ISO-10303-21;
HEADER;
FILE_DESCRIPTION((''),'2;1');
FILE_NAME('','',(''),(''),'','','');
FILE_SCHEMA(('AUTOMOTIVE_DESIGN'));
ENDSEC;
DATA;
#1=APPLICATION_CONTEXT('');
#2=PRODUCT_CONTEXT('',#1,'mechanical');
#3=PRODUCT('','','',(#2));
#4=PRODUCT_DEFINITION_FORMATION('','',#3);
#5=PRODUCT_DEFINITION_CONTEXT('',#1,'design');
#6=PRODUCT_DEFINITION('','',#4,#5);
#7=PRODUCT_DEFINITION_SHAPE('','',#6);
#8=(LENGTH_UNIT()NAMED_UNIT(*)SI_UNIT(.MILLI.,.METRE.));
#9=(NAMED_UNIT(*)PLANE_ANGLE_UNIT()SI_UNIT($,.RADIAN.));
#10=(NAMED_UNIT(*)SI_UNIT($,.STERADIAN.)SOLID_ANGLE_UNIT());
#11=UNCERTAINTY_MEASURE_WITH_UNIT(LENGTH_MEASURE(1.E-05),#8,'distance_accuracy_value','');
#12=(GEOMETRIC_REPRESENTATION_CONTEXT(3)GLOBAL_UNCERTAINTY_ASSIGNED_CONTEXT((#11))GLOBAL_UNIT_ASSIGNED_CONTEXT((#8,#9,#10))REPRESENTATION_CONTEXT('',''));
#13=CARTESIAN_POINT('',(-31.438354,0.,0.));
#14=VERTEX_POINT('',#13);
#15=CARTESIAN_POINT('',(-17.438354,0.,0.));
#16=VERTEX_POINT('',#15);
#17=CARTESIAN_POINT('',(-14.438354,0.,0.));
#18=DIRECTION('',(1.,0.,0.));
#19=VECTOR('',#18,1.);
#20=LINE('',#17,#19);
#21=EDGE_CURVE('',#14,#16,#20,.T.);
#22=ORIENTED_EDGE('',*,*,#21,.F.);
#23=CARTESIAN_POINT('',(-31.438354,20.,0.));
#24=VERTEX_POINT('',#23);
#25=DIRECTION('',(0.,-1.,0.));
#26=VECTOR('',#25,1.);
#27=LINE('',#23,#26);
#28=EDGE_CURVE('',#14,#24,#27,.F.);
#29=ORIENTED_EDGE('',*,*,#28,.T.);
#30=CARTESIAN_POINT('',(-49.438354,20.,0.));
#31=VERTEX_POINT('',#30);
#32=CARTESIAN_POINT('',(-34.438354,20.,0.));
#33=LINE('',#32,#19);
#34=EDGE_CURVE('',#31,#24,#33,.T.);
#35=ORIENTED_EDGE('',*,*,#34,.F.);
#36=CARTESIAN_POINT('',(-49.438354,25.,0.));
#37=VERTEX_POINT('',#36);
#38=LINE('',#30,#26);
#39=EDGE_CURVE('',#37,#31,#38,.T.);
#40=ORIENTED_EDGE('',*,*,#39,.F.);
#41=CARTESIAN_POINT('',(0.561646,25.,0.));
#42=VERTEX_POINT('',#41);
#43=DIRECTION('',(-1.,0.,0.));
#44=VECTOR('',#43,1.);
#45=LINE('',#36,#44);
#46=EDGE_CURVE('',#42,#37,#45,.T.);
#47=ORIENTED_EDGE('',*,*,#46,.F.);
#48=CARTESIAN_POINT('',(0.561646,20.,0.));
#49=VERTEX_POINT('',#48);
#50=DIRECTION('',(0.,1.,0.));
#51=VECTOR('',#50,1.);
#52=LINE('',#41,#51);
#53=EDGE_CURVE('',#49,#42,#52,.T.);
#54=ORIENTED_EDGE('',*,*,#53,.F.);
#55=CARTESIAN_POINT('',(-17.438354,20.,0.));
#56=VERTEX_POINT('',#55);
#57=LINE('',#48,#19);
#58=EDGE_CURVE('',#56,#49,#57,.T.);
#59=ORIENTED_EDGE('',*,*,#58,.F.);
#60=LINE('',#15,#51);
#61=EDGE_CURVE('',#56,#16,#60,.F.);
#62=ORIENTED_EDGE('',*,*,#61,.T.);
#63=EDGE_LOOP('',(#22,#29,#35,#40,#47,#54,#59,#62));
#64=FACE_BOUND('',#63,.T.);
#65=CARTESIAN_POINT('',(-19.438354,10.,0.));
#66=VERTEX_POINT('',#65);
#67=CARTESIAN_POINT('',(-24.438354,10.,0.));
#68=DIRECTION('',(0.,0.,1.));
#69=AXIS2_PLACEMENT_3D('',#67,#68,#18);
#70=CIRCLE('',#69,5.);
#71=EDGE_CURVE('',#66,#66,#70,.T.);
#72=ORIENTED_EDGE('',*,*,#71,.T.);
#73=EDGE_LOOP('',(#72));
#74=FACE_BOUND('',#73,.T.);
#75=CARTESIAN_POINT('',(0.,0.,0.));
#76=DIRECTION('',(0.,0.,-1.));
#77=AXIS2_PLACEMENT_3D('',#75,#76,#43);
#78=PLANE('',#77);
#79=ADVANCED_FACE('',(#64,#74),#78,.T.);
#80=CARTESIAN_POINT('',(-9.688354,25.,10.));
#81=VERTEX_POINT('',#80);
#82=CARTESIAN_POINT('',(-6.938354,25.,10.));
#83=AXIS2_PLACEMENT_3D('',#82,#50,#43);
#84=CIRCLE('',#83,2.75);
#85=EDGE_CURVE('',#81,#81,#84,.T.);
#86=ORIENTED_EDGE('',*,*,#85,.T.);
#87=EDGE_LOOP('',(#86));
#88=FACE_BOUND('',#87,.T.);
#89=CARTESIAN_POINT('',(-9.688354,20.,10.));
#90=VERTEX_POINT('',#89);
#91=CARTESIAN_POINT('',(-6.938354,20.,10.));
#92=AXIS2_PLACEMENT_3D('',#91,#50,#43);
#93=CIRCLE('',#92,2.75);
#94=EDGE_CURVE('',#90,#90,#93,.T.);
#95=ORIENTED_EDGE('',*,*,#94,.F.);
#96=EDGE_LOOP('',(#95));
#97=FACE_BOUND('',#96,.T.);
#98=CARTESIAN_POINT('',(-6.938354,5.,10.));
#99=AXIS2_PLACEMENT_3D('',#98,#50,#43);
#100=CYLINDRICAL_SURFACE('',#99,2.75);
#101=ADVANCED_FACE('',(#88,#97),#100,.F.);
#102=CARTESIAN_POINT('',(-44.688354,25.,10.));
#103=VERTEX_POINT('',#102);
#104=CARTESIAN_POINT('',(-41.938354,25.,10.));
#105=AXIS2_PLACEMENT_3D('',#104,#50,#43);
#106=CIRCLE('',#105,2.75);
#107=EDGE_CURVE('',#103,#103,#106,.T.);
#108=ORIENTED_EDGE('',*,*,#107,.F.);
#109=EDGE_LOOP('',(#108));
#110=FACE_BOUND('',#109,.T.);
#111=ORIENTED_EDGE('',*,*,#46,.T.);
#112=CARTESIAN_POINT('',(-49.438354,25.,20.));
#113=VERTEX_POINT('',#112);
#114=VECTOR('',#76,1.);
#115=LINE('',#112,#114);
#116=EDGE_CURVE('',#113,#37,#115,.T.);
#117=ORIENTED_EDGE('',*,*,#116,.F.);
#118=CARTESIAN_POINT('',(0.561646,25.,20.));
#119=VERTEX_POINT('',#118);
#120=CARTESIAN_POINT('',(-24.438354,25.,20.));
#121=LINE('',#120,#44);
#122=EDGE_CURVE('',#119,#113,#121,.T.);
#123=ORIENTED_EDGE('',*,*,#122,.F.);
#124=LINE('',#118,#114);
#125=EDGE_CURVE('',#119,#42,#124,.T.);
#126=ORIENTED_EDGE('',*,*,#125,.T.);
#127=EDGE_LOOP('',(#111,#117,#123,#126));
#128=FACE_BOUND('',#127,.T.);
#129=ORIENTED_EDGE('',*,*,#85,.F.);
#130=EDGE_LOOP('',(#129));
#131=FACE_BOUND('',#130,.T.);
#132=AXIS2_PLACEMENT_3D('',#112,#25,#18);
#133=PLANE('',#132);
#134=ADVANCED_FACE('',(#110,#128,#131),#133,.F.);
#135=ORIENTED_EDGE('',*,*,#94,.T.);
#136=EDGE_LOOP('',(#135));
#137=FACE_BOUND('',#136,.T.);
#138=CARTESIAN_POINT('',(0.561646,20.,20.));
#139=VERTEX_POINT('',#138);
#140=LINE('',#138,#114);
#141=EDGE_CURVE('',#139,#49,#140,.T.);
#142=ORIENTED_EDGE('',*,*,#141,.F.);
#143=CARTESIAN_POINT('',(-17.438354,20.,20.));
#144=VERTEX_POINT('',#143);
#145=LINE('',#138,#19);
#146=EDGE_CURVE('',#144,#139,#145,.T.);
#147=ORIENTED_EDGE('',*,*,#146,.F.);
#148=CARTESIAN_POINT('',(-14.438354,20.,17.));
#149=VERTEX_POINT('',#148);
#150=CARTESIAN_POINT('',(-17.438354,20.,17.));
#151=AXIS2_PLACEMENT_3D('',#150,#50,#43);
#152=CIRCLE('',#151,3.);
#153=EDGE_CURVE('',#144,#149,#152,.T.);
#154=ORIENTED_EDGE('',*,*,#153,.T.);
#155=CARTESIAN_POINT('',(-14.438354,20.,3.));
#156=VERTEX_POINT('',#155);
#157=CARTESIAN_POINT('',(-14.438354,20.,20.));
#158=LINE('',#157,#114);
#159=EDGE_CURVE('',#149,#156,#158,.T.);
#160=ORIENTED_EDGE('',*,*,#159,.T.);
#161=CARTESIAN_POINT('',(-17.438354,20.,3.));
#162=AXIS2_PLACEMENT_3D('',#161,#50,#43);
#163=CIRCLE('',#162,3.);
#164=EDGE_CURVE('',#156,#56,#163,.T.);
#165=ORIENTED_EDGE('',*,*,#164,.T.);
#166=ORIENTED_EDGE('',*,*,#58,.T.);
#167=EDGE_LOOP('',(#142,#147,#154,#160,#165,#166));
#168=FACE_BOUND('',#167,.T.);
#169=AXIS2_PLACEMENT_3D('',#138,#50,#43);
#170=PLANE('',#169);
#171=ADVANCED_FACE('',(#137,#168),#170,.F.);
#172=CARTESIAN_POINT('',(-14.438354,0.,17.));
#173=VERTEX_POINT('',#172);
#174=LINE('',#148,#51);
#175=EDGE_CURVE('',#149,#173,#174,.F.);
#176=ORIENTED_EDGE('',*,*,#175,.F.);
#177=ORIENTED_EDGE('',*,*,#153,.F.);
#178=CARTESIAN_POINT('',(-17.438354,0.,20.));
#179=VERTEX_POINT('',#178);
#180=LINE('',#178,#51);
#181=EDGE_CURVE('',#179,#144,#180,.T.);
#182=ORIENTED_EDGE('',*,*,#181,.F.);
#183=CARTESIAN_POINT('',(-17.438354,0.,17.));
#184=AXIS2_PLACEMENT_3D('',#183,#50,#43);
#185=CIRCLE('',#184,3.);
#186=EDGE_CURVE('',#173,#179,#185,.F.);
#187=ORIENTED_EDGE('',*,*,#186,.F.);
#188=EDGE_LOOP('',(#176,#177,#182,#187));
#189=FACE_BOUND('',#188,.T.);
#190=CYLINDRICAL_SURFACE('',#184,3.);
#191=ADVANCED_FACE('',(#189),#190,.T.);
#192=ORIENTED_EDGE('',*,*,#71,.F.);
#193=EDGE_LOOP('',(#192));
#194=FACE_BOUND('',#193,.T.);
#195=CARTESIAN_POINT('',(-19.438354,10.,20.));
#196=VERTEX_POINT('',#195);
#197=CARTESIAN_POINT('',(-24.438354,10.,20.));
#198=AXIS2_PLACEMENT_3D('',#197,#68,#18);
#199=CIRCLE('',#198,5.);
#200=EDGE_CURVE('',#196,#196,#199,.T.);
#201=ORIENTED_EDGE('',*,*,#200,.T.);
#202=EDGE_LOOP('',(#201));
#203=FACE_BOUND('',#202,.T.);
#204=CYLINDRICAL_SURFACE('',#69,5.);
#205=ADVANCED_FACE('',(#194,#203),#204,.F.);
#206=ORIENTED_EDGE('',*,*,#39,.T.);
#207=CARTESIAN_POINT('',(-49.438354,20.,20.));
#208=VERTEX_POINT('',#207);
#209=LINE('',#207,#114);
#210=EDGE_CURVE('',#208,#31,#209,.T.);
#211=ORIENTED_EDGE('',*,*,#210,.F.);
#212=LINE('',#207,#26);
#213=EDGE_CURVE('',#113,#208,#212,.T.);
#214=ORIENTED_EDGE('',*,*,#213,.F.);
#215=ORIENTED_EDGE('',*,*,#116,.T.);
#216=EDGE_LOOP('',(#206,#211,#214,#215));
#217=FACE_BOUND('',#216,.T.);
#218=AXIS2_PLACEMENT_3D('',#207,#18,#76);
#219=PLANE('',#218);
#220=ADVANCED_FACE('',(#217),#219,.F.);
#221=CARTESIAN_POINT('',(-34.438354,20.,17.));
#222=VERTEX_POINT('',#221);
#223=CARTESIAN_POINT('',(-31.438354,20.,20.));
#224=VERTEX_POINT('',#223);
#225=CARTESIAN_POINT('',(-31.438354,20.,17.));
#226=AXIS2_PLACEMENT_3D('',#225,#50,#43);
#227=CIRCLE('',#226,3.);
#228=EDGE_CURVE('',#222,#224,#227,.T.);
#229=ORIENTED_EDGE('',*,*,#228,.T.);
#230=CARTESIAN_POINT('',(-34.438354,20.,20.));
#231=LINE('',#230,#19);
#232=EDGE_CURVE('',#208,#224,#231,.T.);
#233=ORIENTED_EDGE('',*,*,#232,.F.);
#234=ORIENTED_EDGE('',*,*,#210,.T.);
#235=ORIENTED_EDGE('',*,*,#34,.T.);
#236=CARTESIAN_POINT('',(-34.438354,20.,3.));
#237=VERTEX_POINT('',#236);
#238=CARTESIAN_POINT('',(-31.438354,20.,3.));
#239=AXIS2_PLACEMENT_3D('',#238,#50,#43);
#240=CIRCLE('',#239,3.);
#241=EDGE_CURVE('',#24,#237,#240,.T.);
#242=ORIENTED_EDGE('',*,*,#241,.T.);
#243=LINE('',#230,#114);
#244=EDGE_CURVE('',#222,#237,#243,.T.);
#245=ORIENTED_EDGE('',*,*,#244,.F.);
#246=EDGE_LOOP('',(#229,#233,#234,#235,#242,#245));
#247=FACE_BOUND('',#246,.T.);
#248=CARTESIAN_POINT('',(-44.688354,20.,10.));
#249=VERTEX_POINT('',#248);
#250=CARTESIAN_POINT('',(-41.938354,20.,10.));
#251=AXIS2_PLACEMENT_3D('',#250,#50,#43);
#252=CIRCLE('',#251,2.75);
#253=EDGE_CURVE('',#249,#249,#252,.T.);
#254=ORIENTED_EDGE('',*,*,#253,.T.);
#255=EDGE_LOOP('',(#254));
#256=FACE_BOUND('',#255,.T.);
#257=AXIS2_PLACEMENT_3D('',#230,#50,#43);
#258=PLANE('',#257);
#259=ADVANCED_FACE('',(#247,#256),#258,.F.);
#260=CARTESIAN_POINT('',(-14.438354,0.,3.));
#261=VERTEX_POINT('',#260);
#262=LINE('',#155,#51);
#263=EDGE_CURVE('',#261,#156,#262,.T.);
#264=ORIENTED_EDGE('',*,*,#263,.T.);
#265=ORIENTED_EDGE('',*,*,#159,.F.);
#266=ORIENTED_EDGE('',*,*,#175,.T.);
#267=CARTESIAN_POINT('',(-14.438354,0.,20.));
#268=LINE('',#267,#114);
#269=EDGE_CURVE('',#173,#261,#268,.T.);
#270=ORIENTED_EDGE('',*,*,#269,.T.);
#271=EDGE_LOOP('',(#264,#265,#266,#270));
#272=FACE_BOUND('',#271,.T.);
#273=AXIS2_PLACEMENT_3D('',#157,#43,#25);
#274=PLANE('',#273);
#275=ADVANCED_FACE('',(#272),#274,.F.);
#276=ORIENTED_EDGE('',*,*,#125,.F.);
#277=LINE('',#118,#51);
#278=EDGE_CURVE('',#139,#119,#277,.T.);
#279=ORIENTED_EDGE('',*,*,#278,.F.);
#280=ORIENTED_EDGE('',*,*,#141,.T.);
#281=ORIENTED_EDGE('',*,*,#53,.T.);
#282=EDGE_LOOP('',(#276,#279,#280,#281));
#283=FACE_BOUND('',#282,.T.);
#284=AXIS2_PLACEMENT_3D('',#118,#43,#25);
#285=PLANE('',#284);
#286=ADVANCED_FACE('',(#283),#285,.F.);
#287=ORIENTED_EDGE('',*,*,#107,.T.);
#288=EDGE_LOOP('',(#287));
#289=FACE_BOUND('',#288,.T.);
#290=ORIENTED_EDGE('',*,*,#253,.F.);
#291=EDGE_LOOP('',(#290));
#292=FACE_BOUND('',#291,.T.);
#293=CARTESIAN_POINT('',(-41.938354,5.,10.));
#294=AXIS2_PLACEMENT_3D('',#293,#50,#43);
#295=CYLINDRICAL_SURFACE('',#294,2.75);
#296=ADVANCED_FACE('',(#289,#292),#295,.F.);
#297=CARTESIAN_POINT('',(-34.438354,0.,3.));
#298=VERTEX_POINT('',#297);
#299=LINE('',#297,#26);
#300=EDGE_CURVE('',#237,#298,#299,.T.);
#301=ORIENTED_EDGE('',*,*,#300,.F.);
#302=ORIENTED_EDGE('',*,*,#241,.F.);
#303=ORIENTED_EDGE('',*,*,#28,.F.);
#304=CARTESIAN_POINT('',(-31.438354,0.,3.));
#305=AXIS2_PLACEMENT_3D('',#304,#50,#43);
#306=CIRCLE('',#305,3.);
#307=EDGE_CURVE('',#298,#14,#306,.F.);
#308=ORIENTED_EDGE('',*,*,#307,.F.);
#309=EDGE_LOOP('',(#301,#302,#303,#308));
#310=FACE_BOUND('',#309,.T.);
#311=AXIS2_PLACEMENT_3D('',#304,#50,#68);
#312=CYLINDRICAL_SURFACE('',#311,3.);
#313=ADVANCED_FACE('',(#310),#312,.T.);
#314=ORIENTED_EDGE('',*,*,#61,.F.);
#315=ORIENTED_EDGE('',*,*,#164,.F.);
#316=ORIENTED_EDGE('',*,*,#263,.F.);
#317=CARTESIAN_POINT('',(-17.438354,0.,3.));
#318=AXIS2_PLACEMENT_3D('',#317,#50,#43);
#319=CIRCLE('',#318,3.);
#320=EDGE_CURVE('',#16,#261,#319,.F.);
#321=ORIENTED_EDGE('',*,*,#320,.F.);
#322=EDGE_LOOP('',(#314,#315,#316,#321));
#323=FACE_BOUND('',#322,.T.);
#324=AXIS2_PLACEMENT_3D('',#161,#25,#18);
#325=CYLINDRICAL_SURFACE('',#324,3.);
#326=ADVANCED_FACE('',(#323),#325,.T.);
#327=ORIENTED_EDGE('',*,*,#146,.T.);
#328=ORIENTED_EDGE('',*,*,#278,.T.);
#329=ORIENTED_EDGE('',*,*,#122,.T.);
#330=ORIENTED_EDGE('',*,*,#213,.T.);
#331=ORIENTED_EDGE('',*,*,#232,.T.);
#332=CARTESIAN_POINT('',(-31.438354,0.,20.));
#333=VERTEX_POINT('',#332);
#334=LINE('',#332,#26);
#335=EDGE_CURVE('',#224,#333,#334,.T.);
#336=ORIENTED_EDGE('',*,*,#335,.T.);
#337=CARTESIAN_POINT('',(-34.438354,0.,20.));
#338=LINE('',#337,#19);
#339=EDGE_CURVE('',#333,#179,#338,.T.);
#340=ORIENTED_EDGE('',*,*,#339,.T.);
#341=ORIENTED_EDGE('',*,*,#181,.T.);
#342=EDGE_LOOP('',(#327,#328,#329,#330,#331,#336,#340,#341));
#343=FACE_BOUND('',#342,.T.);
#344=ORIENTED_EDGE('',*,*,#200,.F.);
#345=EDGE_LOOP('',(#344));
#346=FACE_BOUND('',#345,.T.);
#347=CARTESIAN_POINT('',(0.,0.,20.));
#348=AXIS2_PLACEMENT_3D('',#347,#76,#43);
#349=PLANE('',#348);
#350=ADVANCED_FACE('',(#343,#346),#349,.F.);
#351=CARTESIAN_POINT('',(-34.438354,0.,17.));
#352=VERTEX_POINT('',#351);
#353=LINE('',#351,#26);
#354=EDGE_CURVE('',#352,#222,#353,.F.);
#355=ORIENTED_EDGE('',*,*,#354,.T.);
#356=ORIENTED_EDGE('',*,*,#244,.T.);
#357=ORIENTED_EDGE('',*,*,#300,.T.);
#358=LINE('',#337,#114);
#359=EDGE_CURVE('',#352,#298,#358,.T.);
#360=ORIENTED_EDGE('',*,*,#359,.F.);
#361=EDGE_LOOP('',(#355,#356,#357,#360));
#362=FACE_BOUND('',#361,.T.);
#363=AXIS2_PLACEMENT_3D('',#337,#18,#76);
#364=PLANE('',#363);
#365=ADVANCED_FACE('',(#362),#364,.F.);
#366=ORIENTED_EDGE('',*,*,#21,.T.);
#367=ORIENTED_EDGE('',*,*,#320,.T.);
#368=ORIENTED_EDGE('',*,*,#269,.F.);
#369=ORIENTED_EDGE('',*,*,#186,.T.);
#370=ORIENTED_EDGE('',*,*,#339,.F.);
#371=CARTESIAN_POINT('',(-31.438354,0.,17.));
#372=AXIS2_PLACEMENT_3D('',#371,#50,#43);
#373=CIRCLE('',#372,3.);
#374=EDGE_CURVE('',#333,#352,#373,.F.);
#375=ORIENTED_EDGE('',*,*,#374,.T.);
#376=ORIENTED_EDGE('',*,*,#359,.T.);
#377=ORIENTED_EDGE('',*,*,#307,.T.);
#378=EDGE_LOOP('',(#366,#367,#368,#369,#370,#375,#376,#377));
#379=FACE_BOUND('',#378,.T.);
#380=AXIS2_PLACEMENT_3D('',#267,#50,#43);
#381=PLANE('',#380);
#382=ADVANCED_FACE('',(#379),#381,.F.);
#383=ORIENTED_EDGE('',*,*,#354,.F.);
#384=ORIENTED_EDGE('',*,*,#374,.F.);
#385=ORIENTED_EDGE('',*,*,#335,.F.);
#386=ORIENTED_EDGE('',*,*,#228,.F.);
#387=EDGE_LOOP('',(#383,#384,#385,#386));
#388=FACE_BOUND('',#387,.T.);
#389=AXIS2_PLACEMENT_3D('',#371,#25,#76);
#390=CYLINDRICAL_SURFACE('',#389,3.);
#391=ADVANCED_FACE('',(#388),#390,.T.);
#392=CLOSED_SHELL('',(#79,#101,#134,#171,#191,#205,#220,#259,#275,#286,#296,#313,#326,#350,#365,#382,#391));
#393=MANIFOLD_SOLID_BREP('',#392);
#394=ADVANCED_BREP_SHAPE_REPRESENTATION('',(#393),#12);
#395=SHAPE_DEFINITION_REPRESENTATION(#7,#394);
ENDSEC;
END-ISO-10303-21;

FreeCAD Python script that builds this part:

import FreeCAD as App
import Part
import Sketcher

V = App.Vector
Q = App.Units.Quantity


def edges_at(feature, points):
    """Names of the edges that pass closest to the given points."""
    edges = feature.Shape.Edges
    near = lambda p: min(range(len(edges)), key=lambda i: edges[i].distToShape(Part.Vertex(*p))[0])
    return sorted({f"Edge{near(p) + 1}" for p in points})

doc = App.newDocument("Part")
body = doc.addObject("PartDesign::Body", "Body")

# Sketch on XY plane
sketch1 = doc.addObject("Sketcher::SketchObject", "Sketch")
body.addObject(sketch1)
sketch1.AttachmentSupport = (doc.XY_Plane, [""])
sketch1.MapMode = "FlatFace"
sketch1.addGeometry([
    Part.LineSegment(V(-34, 20, 0), V(-34, 0, 0)),  # 0
    Part.LineSegment(V(-34, 0, 0), V(-14, 0, 0)),  # 1
    Part.LineSegment(V(-14, 0, 0), V(-14, 20, 0)),  # 2
    Part.LineSegment(V(-14, 20, 0), V(1, 20, 0)),  # 3
    Part.LineSegment(V(1, 20, 0), V(1, 25, 0)),  # 4
    Part.LineSegment(V(1, 25, 0), V(-49, 25, 0)),  # 5
    Part.LineSegment(V(-49, 25, 0), V(-49, 20, 0)),  # 6
    Part.LineSegment(V(-49, 20, 0), V(-34, 20, 0)),  # 7
], False)
sketch1.addConstraint([
    Sketcher.Constraint("Coincident", 0, 2, 1, 1),
    Sketcher.Constraint("Coincident", 1, 2, 2, 1),
    Sketcher.Constraint("Coincident", 2, 2, 3, 1),
    Sketcher.Constraint("Coincident", 3, 2, 4, 1),
    Sketcher.Constraint("Coincident", 4, 2, 5, 1),
    Sketcher.Constraint("Coincident", 5, 2, 6, 1),
    Sketcher.Constraint("Coincident", 6, 2, 7, 1),
    Sketcher.Constraint("Coincident", 7, 2, 0, 1),
    Sketcher.Constraint("Vertical", 0),
    Sketcher.Constraint("Horizontal", 1),
    Sketcher.Constraint("Vertical", 2),
    Sketcher.Constraint("Horizontal", 3),
    Sketcher.Constraint("Vertical", 4),
    Sketcher.Constraint("Horizontal", 5),
    Sketcher.Constraint("Vertical", 6),
    Sketcher.Constraint("Horizontal", 7),
    Sketcher.Constraint("PointOnObject", 0, 2, -1),
    Sketcher.Constraint("Horizontal", 3, 2, 6, 2),
    Sketcher.Constraint("Equal", 3, 7),
    Sketcher.Constraint("Equal", 1, 0),
    Sketcher.Constraint("DistanceX", 1, 1, 1, 2, Q("20 mm")),
    Sketcher.Constraint("DistanceX", 3, 1, 3, 2, Q("15 mm")),
    Sketcher.Constraint("DistanceY", 4, 1, 4, 2, Q("5 mm")),
    Sketcher.Constraint("DistanceX", 0, 2, -1, 1, Q("34.438354 mm")),
])
pad1 = doc.addObject("PartDesign::Pad", "Pad")
body.addObject(pad1)
pad1.Profile = sketch1
pad1.Length = 20

# Sketch on XY plane
sketch2 = doc.addObject("Sketcher::SketchObject", "Sketch001")
body.addObject(sketch2)
sketch2.AttachmentSupport = (doc.XY_Plane, [""])
sketch2.MapMode = "FlatFace"
sketch2.AttachmentOffset = App.Placement(V(0, 0, 20), App.Rotation())
sketch2.addGeometry(Part.Circle(V(-24, 10, 0), V(0, 0, 1), 5), False)
sketch2.addConstraint([
    Sketcher.Constraint("Diameter", 0, Q("10 mm")),
    Sketcher.Constraint("DistanceY", -1, 1, 0, 3, Q("10 mm")),
    Sketcher.Constraint("DistanceX", 0, 3, -1, 1, Q("24.438354 mm")),
])
pocket1 = doc.addObject("PartDesign::Pocket", "Pocket")
body.addObject(pocket1)
pocket1.Profile = sketch2
pocket1.Length = 20

# Sketch on XZ plane
sketch3 = doc.addObject("Sketcher::SketchObject", "Sketch002")
body.addObject(sketch3)
sketch3.AttachmentSupport = (doc.XZ_Plane, [""])
sketch3.MapMode = "FlatFace"
sketch3.AttachmentOffset = App.Placement(V(0, 0, -25), App.Rotation())
sketch3.addGeometry([
    Part.Circle(V(-41.9, 10, 0), V(0, 0, 1), 2.8),
    Part.Circle(V(-6.9, 10, 0), V(0, 0, 1), 2.8),
], False)
sketch3.addConstraint([
    Sketcher.Constraint("Equal", 0, 1),
    Sketcher.Constraint("Horizontal", 0, 3, 1, 3),
    Sketcher.Constraint("Diameter", 0, Q("5.5 mm")),
    Sketcher.Constraint("DistanceY", -1, 1, 0, 3, Q("10 mm")),
    Sketcher.Constraint("DistanceX", 0, 3, 1, 3, Q("35 mm")),
    Sketcher.Constraint("DistanceX", 0, 3, -1, 1, Q("41.938354 mm")),
])
pocket2 = doc.addObject("PartDesign::Pocket", "Pocket001")
body.addObject(pocket2)
pocket2.Profile = sketch3
pocket2.Length = 20
pocket2.Reversed = True
doc.recompute()

fillet = doc.addObject("PartDesign::Fillet", "Fillet")
body.addObject(fillet)
fillet.Base = (pocket2, edges_at(pocket2, [
    (-14.438, 10, 20),
    (-14.438, 10, 0),
    (-34.438, 10, 20),
    (-34.438, 10, 0),
]))
fillet.Radius = 3

doc.recompute()
